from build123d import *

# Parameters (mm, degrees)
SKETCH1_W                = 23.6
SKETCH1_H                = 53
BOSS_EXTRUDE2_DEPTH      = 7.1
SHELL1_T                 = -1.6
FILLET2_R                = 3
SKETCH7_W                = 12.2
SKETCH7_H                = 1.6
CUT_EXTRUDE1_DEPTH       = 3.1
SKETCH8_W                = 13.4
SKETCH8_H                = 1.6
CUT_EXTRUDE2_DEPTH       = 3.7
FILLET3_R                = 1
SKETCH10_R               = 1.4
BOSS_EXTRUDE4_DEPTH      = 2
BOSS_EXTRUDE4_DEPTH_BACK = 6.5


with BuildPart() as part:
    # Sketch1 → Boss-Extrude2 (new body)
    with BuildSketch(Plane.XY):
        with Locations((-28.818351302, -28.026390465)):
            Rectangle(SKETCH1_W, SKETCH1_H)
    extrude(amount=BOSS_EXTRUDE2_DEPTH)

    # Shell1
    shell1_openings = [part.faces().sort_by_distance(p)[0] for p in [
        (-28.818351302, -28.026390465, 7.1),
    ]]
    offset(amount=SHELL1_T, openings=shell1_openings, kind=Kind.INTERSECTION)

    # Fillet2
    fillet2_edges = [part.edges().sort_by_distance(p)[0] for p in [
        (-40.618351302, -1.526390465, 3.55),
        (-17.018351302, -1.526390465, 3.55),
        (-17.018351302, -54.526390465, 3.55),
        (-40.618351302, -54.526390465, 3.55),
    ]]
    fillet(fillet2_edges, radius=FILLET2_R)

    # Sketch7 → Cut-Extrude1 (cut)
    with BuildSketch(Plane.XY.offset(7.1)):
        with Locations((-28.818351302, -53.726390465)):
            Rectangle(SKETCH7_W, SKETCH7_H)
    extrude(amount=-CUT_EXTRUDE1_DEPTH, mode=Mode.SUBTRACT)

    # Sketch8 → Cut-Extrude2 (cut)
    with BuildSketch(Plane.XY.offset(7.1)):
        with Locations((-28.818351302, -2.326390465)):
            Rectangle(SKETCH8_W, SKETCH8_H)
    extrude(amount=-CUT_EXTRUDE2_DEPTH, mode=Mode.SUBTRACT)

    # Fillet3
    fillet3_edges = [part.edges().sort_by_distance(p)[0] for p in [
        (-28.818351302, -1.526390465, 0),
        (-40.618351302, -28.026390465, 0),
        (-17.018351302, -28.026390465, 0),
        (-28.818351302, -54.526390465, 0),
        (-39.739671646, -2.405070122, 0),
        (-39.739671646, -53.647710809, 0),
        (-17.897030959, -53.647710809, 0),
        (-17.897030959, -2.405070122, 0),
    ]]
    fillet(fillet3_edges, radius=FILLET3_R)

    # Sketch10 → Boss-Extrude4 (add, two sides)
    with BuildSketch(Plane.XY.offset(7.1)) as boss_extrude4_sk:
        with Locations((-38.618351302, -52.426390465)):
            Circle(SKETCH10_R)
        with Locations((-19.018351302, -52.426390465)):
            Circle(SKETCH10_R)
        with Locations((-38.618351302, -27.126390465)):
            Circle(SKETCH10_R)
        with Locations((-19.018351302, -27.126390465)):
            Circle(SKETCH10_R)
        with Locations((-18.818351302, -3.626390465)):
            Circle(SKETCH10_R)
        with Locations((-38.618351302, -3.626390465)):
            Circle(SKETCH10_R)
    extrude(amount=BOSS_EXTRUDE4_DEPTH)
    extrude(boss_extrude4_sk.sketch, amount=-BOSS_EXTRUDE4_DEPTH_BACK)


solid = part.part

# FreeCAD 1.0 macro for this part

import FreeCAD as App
import Part
import Sketcher
from FreeCAD import Vector
Q = App.Units.Quantity


def edges_at(feature, points):
    """Names of the edges that pass closest to the given points."""
    edges = feature.Shape.Edges
    near = lambda p: min(range(len(edges)), key=lambda i: edges[i].distToShape(Part.Vertex(*p))[0])
    return sorted({f"Edge{near(p) + 1}" for p in points})


def faces_at(feature, points):
    """Names of the faces that lie closest to the given points."""
    faces = feature.Shape.Faces
    near = lambda p: min(range(len(faces)), key=lambda i: faces[i].distToShape(Part.Vertex(*p))[0])
    return sorted({f"Face{near(p) + 1}" for p in points})

doc = App.newDocument("Part")
params = doc.addObject("Spreadsheet::Sheet", "Params")
for row, (alias, value) in enumerate([
    ("sketch1_height", "53 mm"),
    ("sketch1_width", "23.6 mm"),
    ("pad1_length", "7.1 mm"),
    ("thickness_wall", "1.6 mm"),
    ("fillet_radius", "3 mm"),
    ("sketch2_width", "12.2 mm"),
    ("sketch2_height", "1.6 mm"),
    ("pocket1_length", "3.1 mm"),
    ("sketch3_width", "13.4 mm"),
    ("sketch3_height", "1.6 mm"),
    ("pocket2_length", "3.7 mm"),
    ("fillet2_radius", "1 mm"),
    ("sketch4_diameter", "2.8 mm"),
    ("pad2_length", "2 mm"),
    ("pad2_length2", "6.5 mm"),
], start=1):
    params.set(f"A{row}", alias)
    params.set(f"B{row}", "=" + value)
    params.setAlias(f"B{row}", alias)

body = doc.addObject("PartDesign::Body", "Body")

sketch1 = body.newObject("Sketcher::SketchObject", "Sketch")
sketch1.AttachmentSupport = (doc.getObject("XY_Plane"), [""])
sketch1.MapMode = "FlatFace"
sketch1.addGeometry([
    Part.LineSegment(Vector(-41, -2, 0), Vector(-41, -55, 0)),
    Part.LineSegment(Vector(-41, -55, 0), Vector(-17, -55, 0)),
    Part.LineSegment(Vector(-17, -55, 0), Vector(-17, -2, 0)),
    Part.LineSegment(Vector(-17, -2, 0), Vector(-41, -2, 0)),
], False)
sketch1.addConstraint([
    Sketcher.Constraint("Coincident", 0, 2, 1, 1),
    Sketcher.Constraint("Coincident", 1, 2, 2, 1),
    Sketcher.Constraint("Coincident", 2, 2, 3, 1),
    Sketcher.Constraint("Coincident", 3, 2, 0, 1),
    Sketcher.Constraint("Vertical", 0),
    Sketcher.Constraint("Horizontal", 1),
    Sketcher.Constraint("Vertical", 2),
    Sketcher.Constraint("Horizontal", 3),
    Sketcher.Constraint("DistanceY", 0, 2, 0, 1, Q("53 mm")),
    Sketcher.Constraint("DistanceX", 1, 1, 1, 2, Q("23.6 mm")),
    Sketcher.Constraint("DistanceX", 0, 2, -1, 1, Q("40.618351 mm")),
    Sketcher.Constraint("DistanceY", 0, 2, -1, 1, Q("54.52639 mm")),
])
sketch1.setExpression("Constraints[8]", "Params.sketch1_height")
sketch1.setExpression("Constraints[9]", "Params.sketch1_width")
pad1 = body.newObject("PartDesign::Pad", "Pad")
pad1.Profile = sketch1
pad1.setExpression("Length", "Params.pad1_length")
doc.recompute()

thickness = body.newObject("PartDesign::Thickness", "Thickness")
thickness.Base = (pad1, faces_at(pad1, [(-28.818, -28.026, 7.1)]))
thickness.setExpression("Value", "Params.thickness_wall")
thickness.Reversed = True
thickness.Join = "Intersection"
doc.recompute()

fillet = body.newObject("PartDesign::Fillet", "Fillet")
fillet.Base = (thickness, edges_at(thickness, [
    (-40.618, -1.526, 3.55),
    (-17.018, -1.526, 3.55),
    (-17.018, -54.526, 3.55),
    (-40.618, -54.526, 3.55),
]))
fillet.setExpression("Radius", "Params.fillet_radius")

sketch2 = body.newObject("Sketcher::SketchObject", "Sketch001")
sketch2.AttachmentSupport = (doc.getObject("XY_Plane"), [""])
sketch2.MapMode = "FlatFace"
sketch2.AttachmentOffset = App.Placement(Vector(0, 0, 7.1), App.Rotation())
sketch2.addGeometry([
    Part.LineSegment(Vector(-34.9, -52.9, 0), Vector(-34.9, -54.5, 0)),
    Part.LineSegment(Vector(-34.9, -54.5, 0), Vector(-22.7, -54.5, 0)),
    Part.LineSegment(Vector(-22.7, -54.5, 0), Vector(-22.7, -52.9, 0)),
    Part.LineSegment(Vector(-22.7, -52.9, 0), Vector(-34.9, -52.9, 0)),
], False)
sketch2.addConstraint([
    Sketcher.Constraint("Coincident", 0, 2, 1, 1),
    Sketcher.Constraint("Coincident", 1, 2, 2, 1),
    Sketcher.Constraint("Coincident", 2, 2, 3, 1),
    Sketcher.Constraint("Coincident", 3, 2, 0, 1),
    Sketcher.Constraint("Vertical", 0),
    Sketcher.Constraint("Horizontal", 1),
    Sketcher.Constraint("Vertical", 2),
    Sketcher.Constraint("Horizontal", 3),
    Sketcher.Constraint("DistanceX", 1, 1, 1, 2, Q("12.2 mm")),
    Sketcher.Constraint("DistanceY", 0, 2, 0, 1, Q("1.6 mm")),
    Sketcher.Constraint("DistanceX", 0, 2, -1, 1, Q("34.918351 mm")),
    Sketcher.Constraint("DistanceY", 0, 2, -1, 1, Q("54.52639 mm")),
])
sketch2.setExpression("Constraints[8]", "Params.sketch2_width")
sketch2.setExpression("Constraints[9]", "Params.sketch2_height")
pocket1 = body.newObject("PartDesign::Pocket", "Pocket")
pocket1.Profile = sketch2
pocket1.setExpression("Length", "Params.pocket1_length")

sketch3 = body.newObject("Sketcher::SketchObject", "Sketch002")
sketch3.AttachmentSupport = (doc.getObject("XY_Plane"), [""])
sketch3.MapMode = "FlatFace"
sketch3.AttachmentOffset = App.Placement(Vector(0, 0, 7.1), App.Rotation())
sketch3.addGeometry([
    Part.LineSegment(Vector(-35.5, -1.5, 0), Vector(-35.5, -3.1, 0)),
    Part.LineSegment(Vector(-35.5, -3.1, 0), Vector(-22.1, -3.1, 0)),
    Part.LineSegment(Vector(-22.1, -3.1, 0), Vector(-22.1, -1.5, 0)),
    Part.LineSegment(Vector(-22.1, -1.5, 0), Vector(-35.5, -1.5, 0)),
], False)
sketch3.addConstraint([
    Sketcher.Constraint("Coincident", 0, 2, 1, 1),
    Sketcher.Constraint("Coincident", 1, 2, 2, 1),
    Sketcher.Constraint("Coincident", 2, 2, 3, 1),
    Sketcher.Constraint("Coincident", 3, 2, 0, 1),
    Sketcher.Constraint("Vertical", 0),
    Sketcher.Constraint("Horizontal", 1),
    Sketcher.Constraint("Vertical", 2),
    Sketcher.Constraint("Horizontal", 3),
    Sketcher.Constraint("DistanceX", 1, 1, 1, 2, Q("13.4 mm")),
    Sketcher.Constraint("DistanceY", 0, 2, 0, 1, Q("1.6 mm")),
    Sketcher.Constraint("DistanceX", 0, 2, -1, 1, Q("35.518351 mm")),
    Sketcher.Constraint("DistanceY", 0, 2, -1, 1, Q("3.12639 mm")),
])
sketch3.setExpression("Constraints[8]", "Params.sketch3_width")
sketch3.setExpression("Constraints[9]", "Params.sketch3_height")
pocket2 = body.newObject("PartDesign::Pocket", "Pocket001")
pocket2.Profile = sketch3
pocket2.setExpression("Length", "Params.pocket2_length")
doc.recompute()

fillet2 = body.newObject("PartDesign::Fillet", "Fillet001")
fillet2.Base = (pocket2, edges_at(pocket2, [
    (-28.818, -1.526, 0),
    (-40.618, -28.026, 0),
    (-17.018, -28.026, 0),
    (-28.818, -54.526, 0),
    (-39.74, -2.405, 0),
    (-39.74, -53.648, 0),
    (-17.897, -53.648, 0),
    (-17.897, -2.405, 0),
]))
fillet2.setExpression("Radius", "Params.fillet2_radius")

sketch4 = body.newObject("Sketcher::SketchObject", "Sketch003")
sketch4.AttachmentSupport = (doc.getObject("XY_Plane"), [""])
sketch4.MapMode = "FlatFace"
sketch4.AttachmentOffset = App.Placement(Vector(0, 0, 7.1), App.Rotation())
sketch4.addGeometry([
    Part.Circle(Vector(-38.6, -52.4, 0), Vector(0, 0, 1), 1.4),
    Part.Circle(Vector(-19, -52.4, 0), Vector(0, 0, 1), 1.4),
    Part.Circle(Vector(-38.6, -27.1, 0), Vector(0, 0, 1), 1.4),
    Part.Circle(Vector(-19, -27.1, 0), Vector(0, 0, 1), 1.4),
    Part.Circle(Vector(-18.8, -3.6, 0), Vector(0, 0, 1), 1.4),
    Part.Circle(Vector(-38.6, -3.6, 0), Vector(0, 0, 1), 1.4),
], False)
sketch4.addConstraint([
    Sketcher.Constraint("Equal", 0, 1),
    Sketcher.Constraint("Equal", 1, 2),
    Sketcher.Constraint("Equal", 2, 3),
    Sketcher.Constraint("Equal", 3, 4),
    Sketcher.Constraint("Equal", 4, 5),
    Sketcher.Constraint("Horizontal", 0, 3, 1, 3),
    Sketcher.Constraint("Horizontal", 2, 3, 3, 3),
    Sketcher.Constraint("Horizontal", 4, 3, 5, 3),
    Sketcher.Constraint("Vertical", 0, 3, 2, 3),
    Sketcher.Constraint("Vertical", 1, 3, 3, 3),
    Sketcher.Constraint("Vertical", 2, 3, 5, 3),
    Sketcher.Constraint("Diameter", 0, Q("2.8 mm")),
    Sketcher.Constraint("DistanceX", 0, 3, 1, 3, Q("19.6 mm")),
    Sketcher.Constraint("DistanceY", 0, 3, 2, 3, Q("25.3 mm")),
    Sketcher.Constraint("DistanceX", 3, 3, 4, 3, Q("0.2 mm")),
    Sketcher.Constraint("DistanceY", 3, 3, 4, 3, Q("23.5 mm")),
    Sketcher.Constraint("DistanceX", 0, 3, -1, 1, Q("38.618351 mm")),
    Sketcher.Constraint("DistanceY", 0, 3, -1, 1, Q("52.42639 mm")),
])
sketch4.setExpression("Constraints[11]", "Params.sketch4_diameter")
pad2 = body.newObject("PartDesign::Pad", "Pad001")
pad2.Profile = sketch4
pad2.Type = "TwoLengths"
pad2.setExpression("Length", "Params.pad2_length")
pad2.setExpression("Length2", "Params.pad2_length2")

doc.recompute()
